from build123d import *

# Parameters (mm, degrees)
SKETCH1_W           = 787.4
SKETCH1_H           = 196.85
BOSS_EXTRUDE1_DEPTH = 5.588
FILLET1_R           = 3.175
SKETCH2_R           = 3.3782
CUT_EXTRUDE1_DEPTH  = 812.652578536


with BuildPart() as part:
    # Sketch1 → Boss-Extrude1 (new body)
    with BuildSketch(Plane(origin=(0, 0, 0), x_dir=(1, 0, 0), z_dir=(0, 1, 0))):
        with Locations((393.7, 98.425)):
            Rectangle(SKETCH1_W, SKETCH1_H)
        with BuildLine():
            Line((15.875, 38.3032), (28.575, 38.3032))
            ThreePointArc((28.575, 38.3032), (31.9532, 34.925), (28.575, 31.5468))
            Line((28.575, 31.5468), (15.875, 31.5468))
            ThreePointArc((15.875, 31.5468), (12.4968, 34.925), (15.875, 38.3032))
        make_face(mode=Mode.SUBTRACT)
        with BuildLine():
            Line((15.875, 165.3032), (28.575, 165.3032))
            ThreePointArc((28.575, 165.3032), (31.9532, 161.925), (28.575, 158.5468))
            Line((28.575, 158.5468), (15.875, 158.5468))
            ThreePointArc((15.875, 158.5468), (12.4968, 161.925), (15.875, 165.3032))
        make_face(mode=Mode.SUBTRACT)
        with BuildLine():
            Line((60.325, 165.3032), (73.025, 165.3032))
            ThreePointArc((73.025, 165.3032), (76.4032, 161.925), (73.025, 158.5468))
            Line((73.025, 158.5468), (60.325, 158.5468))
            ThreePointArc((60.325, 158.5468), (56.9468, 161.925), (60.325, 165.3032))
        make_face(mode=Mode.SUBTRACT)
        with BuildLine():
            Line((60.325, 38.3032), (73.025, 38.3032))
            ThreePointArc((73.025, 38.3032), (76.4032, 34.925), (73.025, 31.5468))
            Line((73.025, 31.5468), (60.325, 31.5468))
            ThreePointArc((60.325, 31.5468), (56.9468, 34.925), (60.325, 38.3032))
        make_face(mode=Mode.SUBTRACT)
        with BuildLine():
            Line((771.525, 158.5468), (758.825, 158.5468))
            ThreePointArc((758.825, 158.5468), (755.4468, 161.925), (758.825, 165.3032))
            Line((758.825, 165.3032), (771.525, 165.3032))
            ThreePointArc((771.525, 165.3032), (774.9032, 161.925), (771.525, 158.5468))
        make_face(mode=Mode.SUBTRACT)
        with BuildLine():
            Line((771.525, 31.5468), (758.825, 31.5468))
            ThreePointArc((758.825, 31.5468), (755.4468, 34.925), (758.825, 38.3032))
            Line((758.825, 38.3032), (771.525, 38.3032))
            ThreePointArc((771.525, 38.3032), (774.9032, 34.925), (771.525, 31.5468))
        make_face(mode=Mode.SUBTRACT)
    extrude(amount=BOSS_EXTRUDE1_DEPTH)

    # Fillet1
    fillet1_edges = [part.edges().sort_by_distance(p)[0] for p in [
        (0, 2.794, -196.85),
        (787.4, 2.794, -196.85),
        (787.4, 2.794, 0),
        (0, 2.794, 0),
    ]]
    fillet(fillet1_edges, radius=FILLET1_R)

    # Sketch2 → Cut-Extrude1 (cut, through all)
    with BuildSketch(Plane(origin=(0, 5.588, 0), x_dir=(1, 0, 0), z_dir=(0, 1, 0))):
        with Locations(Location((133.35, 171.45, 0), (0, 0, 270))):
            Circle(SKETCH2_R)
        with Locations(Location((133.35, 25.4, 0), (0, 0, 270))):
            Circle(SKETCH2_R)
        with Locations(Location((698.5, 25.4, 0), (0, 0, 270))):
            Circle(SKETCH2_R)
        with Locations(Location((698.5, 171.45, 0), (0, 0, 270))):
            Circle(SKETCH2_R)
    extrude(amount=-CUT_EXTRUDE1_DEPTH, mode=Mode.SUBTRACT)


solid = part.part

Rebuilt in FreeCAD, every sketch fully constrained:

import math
import FreeCAD as App
import Part
import Sketcher
from FreeCAD import Vector
Q = App.Units.Quantity


def edges_at(feature, points):
    """Names of the edges that pass closest to the given points."""
    edges = feature.Shape.Edges
    near = lambda p: min(range(len(edges)), key=lambda i: edges[i].distToShape(Part.Vertex(*p))[0])
    return sorted({f"Edge{near(p) + 1}" for p in points})

doc = App.newDocument("Part")
body = doc.addObject("PartDesign::Body", "Body")

# Sketch on XZ plane
sketch1 = body.newObject("Sketcher::SketchObject", "Sketch")
sketch1.AttachmentSupport = (doc.getObject("XZ_Plane"), [""])
sketch1.MapMode = "FlatFace"
sketch1.addGeometry([
    Part.LineSegment(Vector(0, -196.8, 0), Vector(0, 0, 0)),  # 0
    Part.LineSegment(Vector(0, 0, 0), Vector(787.4, 0, 0)),  # 1
    Part.LineSegment(Vector(787.4, 0, 0), Vector(787.4, -196.8, 0)),  # 2
    Part.LineSegment(Vector(787.4, -196.8, 0), Vector(0, -196.8, 0)),  # 3
    Part.ArcOfCircle(Part.Circle(Vector(15.9, -34.9, 0), Vector(0, 0, 1), 3.4), math.radians(90), math.radians(270)),  # 4
    Part.LineSegment(Vector(15.9, -38.3, 0), Vector(28.6, -38.3, 0)),  # 5
    Part.ArcOfCircle(Part.Circle(Vector(28.6, -34.9, 0), Vector(0, 0, 1), 3.4), math.radians(-90), math.radians(90)),  # 6
    Part.LineSegment(Vector(28.6, -31.5, 0), Vector(15.9, -31.5, 0)),  # 7
    Part.ArcOfCircle(Part.Circle(Vector(60.3, -34.9, 0), Vector(0, 0, 1), 3.4), math.radians(90), math.radians(270)),  # 8
    Part.LineSegment(Vector(60.3, -38.3, 0), Vector(73, -38.3, 0)),  # 9
    Part.ArcOfCircle(Part.Circle(Vector(73, -34.9, 0), Vector(0, 0, 1), 3.4), math.radians(-90), math.radians(90)),  # 10
    Part.LineSegment(Vector(73, -31.5, 0), Vector(60.3, -31.5, 0)),  # 11
    Part.ArcOfCircle(Part.Circle(Vector(771.5, -34.9, 0), Vector(0, 0, 1), 3.4), math.radians(-90), math.radians(90)),  # 12
    Part.LineSegment(Vector(771.5, -31.5, 0), Vector(758.8, -31.5, 0)),  # 13
    Part.ArcOfCircle(Part.Circle(Vector(758.8, -34.9, 0), Vector(0, 0, 1), 3.4), math.radians(90), math.radians(270)),  # 14
    Part.LineSegment(Vector(758.8, -38.3, 0), Vector(771.5, -38.3, 0)),  # 15
    Part.ArcOfCircle(Part.Circle(Vector(15.9, -161.9, 0), Vector(0, 0, 1), 3.4), math.radians(90), math.radians(270)),  # 16
    Part.LineSegment(Vector(15.9, -165.3, 0), Vector(28.6, -165.3, 0)),  # 17
    Part.ArcOfCircle(Part.Circle(Vector(28.6, -161.9, 0), Vector(0, 0, 1), 3.4), math.radians(-90), math.radians(90)),  # 18
    Part.LineSegment(Vector(28.6, -158.5, 0), Vector(15.9, -158.5, 0)),  # 19
    Part.ArcOfCircle(Part.Circle(Vector(60.3, -161.9, 0), Vector(0, 0, 1), 3.4), math.radians(90), math.radians(270)),  # 20
    Part.LineSegment(Vector(60.3, -165.3, 0), Vector(73, -165.3, 0)),  # 21
    Part.ArcOfCircle(Part.Circle(Vector(73, -161.9, 0), Vector(0, 0, 1), 3.4), math.radians(-90), math.radians(90)),  # 22
    Part.LineSegment(Vector(73, -158.5, 0), Vector(60.3, -158.5, 0)),  # 23
    Part.ArcOfCircle(Part.Circle(Vector(771.5, -161.9, 0), Vector(0, 0, 1), 3.4), math.radians(-90), math.radians(90)),  # 24
    Part.LineSegment(Vector(771.5, -158.5, 0), Vector(758.8, -158.5, 0)),  # 25
    Part.ArcOfCircle(Part.Circle(Vector(758.8, -161.9, 0), Vector(0, 0, 1), 3.4), math.radians(90), math.radians(270)),  # 26
    Part.LineSegment(Vector(758.8, -165.3, 0), Vector(771.5, -165.3, 0)),  # 27
], False)
sketch1.addConstraint([
    Sketcher.Constraint("Coincident", 0, 2, 1, 1),
    Sketcher.Constraint("Coincident", 1, 2, 2, 1),
    Sketcher.Constraint("Coincident", 2, 2, 3, 1),
    Sketcher.Constraint("Coincident", 3, 2, 0, 1),
    Sketcher.Constraint("Tangent", 4, 2, 5, 1),
    Sketcher.Constraint("Tangent", 5, 2, 6, 1),
    Sketcher.Constraint("Tangent", 6, 2, 7, 1),
    Sketcher.Constraint("Tangent", 7, 2, 4, 1),
    Sketcher.Constraint("Tangent", 8, 2, 9, 1),
    Sketcher.Constraint("Tangent", 9, 2, 10, 1),
    Sketcher.Constraint("Tangent", 10, 2, 11, 1),
    Sketcher.Constraint("Tangent", 11, 2, 8, 1),
    Sketcher.Constraint("Tangent", 12, 2, 13, 1),
    Sketcher.Constraint("Tangent", 13, 2, 14, 1),
    Sketcher.Constraint("Tangent", 14, 2, 15, 1),
    Sketcher.Constraint("Tangent", 15, 2, 12, 1),
    Sketcher.Constraint("Tangent", 16, 2, 17, 1),
    Sketcher.Constraint("Tangent", 17, 2, 18, 1),
    Sketcher.Constraint("Tangent", 18, 2, 19, 1),
    Sketcher.Constraint("Tangent", 19, 2, 16, 1),
    Sketcher.Constraint("Tangent", 20, 2, 21, 1),
    Sketcher.Constraint("Tangent", 21, 2, 22, 1),
    Sketcher.Constraint("Tangent", 22, 2, 23, 1),
    Sketcher.Constraint("Tangent", 23, 2, 20, 1),
    Sketcher.Constraint("Tangent", 24, 2, 25, 1),
    Sketcher.Constraint("Tangent", 25, 2, 26, 1),
    Sketcher.Constraint("Tangent", 26, 2, 27, 1),
    Sketcher.Constraint("Tangent", 27, 2, 24, 1),
    Sketcher.Constraint("Vertical", 0),
    Sketcher.Constraint("Horizontal", 1),
    Sketcher.Constraint("Vertical", 2),
    Sketcher.Constraint("Horizontal", 3),
    Sketcher.Constraint("Horizontal", 5),
    Sketcher.Constraint("Horizontal", 7),
    Sketcher.Constraint("Horizontal", 9),
    Sketcher.Constraint("Horizontal", 11),
    Sketcher.Constraint("Horizontal", 13),
    Sketcher.Constraint("Horizontal", 15),
    Sketcher.Constraint("Horizontal", 17),
    Sketcher.Constraint("Horizontal", 19),
    Sketcher.Constraint("Horizontal", 21),
    Sketcher.Constraint("Horizontal", 23),
    Sketcher.Constraint("Horizontal", 25),
    Sketcher.Constraint("Horizontal", 27),
    Sketcher.Constraint("Coincident", 0, 2, -1, 1),
    Sketcher.Constraint("Equal", 6, 8),
    Sketcher.Constraint("Equal", 10, 12),
    Sketcher.Constraint("Equal", 14, 16),
    Sketcher.Constraint("Equal", 18, 20),
    Sketcher.Constraint("Equal", 22, 24),
    Sketcher.Constraint("Horizontal", 6, 3, 8, 3),
    Sketcher.Constraint("Horizontal", 10, 3, 12, 3),
    Sketcher.Constraint("Horizontal", 18, 3, 20, 3),
    Sketcher.Constraint("Horizontal", 22, 3, 24, 3),
    Sketcher.Constraint("Vertical", 4, 3, 16, 3),
    Sketcher.Constraint("Vertical", 6, 3, 18, 3),
    Sketcher.Constraint("Vertical", 8, 3, 20, 3),
    Sketcher.Constraint("Vertical", 10, 3, 22, 3),
    Sketcher.Constraint("Vertical", 12, 3, 24, 3),
    Sketcher.Constraint("Vertical", 14, 3, 26, 3),
    Sketcher.Constraint("Equal", 7, 9),
    Sketcher.Constraint("Equal", 11, 13),
    Sketcher.Constraint("DistanceX", 1, 1, 1, 2, Q("31 in")),
    Sketcher.Constraint("DistanceX", 5, 1, 5, 2, Q("0.5 in")),
    Sketcher.Constraint("Radius", 4, Q("0.133 in")),
    Sketcher.Constraint("DistanceX", 8, 3, 12, 3, Q("28 in")),
    Sketcher.Constraint("DistanceY", 16, 3, 4, 3, Q("5 in")),
    Sketcher.Constraint("DistanceY", 0, 1, 0, 2, Q("7.75 in")),
    Sketcher.Constraint("DistanceX", 6, 3, 8, 3, Q("1.25 in")),
    Sketcher.Constraint("DistanceX", -1, 1, 4, 3, Q("0.625 in")),
    Sketcher.Constraint("DistanceY", 4, 3, -1, 1, Q("1.375 in")),
])
pad1 = body.newObject("PartDesign::Pad", "Pad")
pad1.Profile = sketch1
pad1.Length = Q("0.22 in")
pad1.Reversed = True
doc.recompute()

fillet = body.newObject("PartDesign::Fillet", "Fillet")
fillet.Base = (pad1, edges_at(pad1, [
    (0, 2.794, -196.85),
    (787.4, 2.794, -196.85),
    (787.4, 2.794, 0),
    (0, 2.794, 0),
]))
fillet.Radius = Q("0.125 in")

# Sketch on XZ plane
sketch2 = body.newObject("Sketcher::SketchObject", "Sketch001")
sketch2.AttachmentSupport = (doc.getObject("XZ_Plane"), [""])
sketch2.MapMode = "FlatFace"
sketch2.AttachmentOffset = App.Placement(Vector(0, 0, -0.22 * 25.4), App.Rotation())
sketch2.addGeometry([
    Part.Circle(Vector(133.3, -171.4, 0), Vector(0, 0, 1), 3.4),
    Part.Circle(Vector(133.3, -25.4, 0), Vector(0, 0, 1), 3.4),
    Part.Circle(Vector(698.5, -25.4, 0), Vector(0, 0, 1), 3.4),
    Part.Circle(Vector(698.5, -171.4, 0), Vector(0, 0, 1), 3.4),
], False)
sketch2.addConstraint([
    Sketcher.Constraint("Equal", 0, 1),
    Sketcher.Constraint("Equal", 1, 2),
    Sketcher.Constraint("Equal", 2, 3),
    Sketcher.Constraint("Horizontal", 1, 3, 2, 3),
    Sketcher.Constraint("Horizontal", 0, 3, 3, 3),
    Sketcher.Constraint("Vertical", 0, 3, 1, 3),
    Sketcher.Constraint("Vertical", 2, 3, 3, 3),
    Sketcher.Constraint("Diameter", 0, Q("0.266 in")),
    Sketcher.Constraint("DistanceY", 1, 3, -1, 1, Q("1 in")),
    Sketcher.Constraint("DistanceX", -1, 1, 2, 3, Q("27.5 in")),
    Sketcher.Constraint("DistanceX", -1, 1, 0, 3, Q("5.25 in")),
    Sketcher.Constraint("DistanceY", 0, 3, -1, 1, Q("6.75 in")),
])
pocket1 = body.newObject("PartDesign::Pocket", "Pocket")
pocket1.Profile = sketch2
pocket1.Type = "ThroughAll"
pocket1.Reversed = True

doc.recompute()
